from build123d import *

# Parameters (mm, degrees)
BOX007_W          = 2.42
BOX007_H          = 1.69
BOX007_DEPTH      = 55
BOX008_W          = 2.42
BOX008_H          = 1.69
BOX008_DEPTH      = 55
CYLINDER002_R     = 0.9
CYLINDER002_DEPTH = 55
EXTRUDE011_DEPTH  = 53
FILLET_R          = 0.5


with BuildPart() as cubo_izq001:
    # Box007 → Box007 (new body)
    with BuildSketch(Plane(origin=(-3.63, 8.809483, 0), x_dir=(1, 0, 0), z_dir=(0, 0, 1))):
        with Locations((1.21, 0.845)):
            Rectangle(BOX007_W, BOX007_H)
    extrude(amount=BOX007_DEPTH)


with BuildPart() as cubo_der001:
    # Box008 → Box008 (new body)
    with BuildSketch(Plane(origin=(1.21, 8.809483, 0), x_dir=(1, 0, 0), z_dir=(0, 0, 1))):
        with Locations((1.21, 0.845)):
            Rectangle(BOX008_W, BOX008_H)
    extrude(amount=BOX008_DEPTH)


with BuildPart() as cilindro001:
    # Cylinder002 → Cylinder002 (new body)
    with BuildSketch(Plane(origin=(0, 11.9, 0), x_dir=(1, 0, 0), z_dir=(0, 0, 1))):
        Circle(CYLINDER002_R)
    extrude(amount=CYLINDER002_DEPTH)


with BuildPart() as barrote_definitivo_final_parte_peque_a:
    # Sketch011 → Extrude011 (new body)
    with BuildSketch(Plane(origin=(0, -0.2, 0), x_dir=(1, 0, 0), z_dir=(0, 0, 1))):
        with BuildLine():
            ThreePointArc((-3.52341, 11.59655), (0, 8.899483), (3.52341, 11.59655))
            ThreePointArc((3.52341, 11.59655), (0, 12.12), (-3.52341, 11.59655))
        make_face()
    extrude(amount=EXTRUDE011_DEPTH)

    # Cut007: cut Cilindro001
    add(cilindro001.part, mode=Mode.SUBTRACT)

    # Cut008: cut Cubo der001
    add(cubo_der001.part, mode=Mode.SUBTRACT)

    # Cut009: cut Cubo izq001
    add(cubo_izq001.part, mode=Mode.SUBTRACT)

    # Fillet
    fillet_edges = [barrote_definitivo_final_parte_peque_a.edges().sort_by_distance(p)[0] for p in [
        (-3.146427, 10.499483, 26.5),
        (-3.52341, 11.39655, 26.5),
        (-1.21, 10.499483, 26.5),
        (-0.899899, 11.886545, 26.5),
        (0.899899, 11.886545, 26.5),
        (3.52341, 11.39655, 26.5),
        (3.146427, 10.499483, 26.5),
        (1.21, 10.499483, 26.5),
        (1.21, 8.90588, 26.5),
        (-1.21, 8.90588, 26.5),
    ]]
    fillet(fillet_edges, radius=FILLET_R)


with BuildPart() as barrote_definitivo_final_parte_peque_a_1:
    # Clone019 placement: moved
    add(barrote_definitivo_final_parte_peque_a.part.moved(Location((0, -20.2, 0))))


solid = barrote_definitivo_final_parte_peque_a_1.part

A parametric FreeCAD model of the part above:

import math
import FreeCAD as App
import Part
import Sketcher

V = App.Vector
Q = App.Units.Quantity


def edges_at(feature, points):
    """Names of the edges that pass closest to the given points."""
    edges = feature.Shape.Edges
    near = lambda p: min(range(len(edges)), key=lambda i: edges[i].distToShape(Part.Vertex(*p))[0])
    return sorted({f"Edge{near(p) + 1}" for p in points})


def add_polygon(sketch, points):
    """Adds a closed chain of lines whose ends are joined by coincident constraints."""
    first, n = sketch.GeometryCount, len(points)
    for a, b in zip(points, points[1:] + points[:1]):
        sketch.addGeometry(Part.LineSegment(App.Vector(*a, 0), App.Vector(*b, 0)), False)
    for i in range(n):
        sketch.addConstraint(Sketcher.Constraint("Coincident", first + i, 2, first + (i + 1) % n, 1))

doc = App.newDocument("Part")
body = doc.addObject("PartDesign::Body", "Body")

sketch1 = doc.addObject("Sketcher::SketchObject", "Sketch")
body.addObject(sketch1)
sketch1.AttachmentSupport = (doc.XY_Plane, [""])
sketch1.MapMode = "FlatFace"
add_polygon(sketch1, [(-3.63, 10.499483), (-3.63, 8.809483), (-1.21, 8.809483), (-1.21, 10.499483)])
sketch1.addConstraint([
    Sketcher.Constraint("Vertical", 0),
    Sketcher.Constraint("Horizontal", 1),
    Sketcher.Constraint("Vertical", 2),
    Sketcher.Constraint("Horizontal", 3),
    Sketcher.Constraint("DistanceX", 1, 1, 1, 2, Q("2.42 mm")),
    Sketcher.Constraint("DistanceY", 0, 2, 0, 1, Q("1.69 mm")),
    Sketcher.Constraint("DistanceX", 0, 2, -1, 1, Q("3.63 mm")),
    Sketcher.Constraint("DistanceY", -1, 1, 0, 2, Q("8.809483 mm")),
])
pad1 = doc.addObject("PartDesign::Pad", "Pad")
body.addObject(pad1)
pad1.Profile = sketch1
pad1.Length = 55
body2 = doc.addObject("PartDesign::Body", "Body001")

sketch2 = doc.addObject("Sketcher::SketchObject", "Sketch001")
body2.addObject(sketch2)
sketch2.AttachmentSupport = (doc.getObject("XY_Plane001"), [""])
sketch2.MapMode = "FlatFace"
add_polygon(sketch2, [(1.21, 10.499483), (1.21, 8.809483), (3.63, 8.809483), (3.63, 10.499483)])
sketch2.addConstraint([
    Sketcher.Constraint("Vertical", 0),
    Sketcher.Constraint("Horizontal", 1),
    Sketcher.Constraint("Vertical", 2),
    Sketcher.Constraint("Horizontal", 3),
    Sketcher.Constraint("DistanceX", 1, 1, 1, 2, Q("2.42 mm")),
    Sketcher.Constraint("DistanceY", 0, 2, 0, 1, Q("1.69 mm")),
    Sketcher.Constraint("DistanceX", -1, 1, 0, 2, Q("1.21 mm")),
    Sketcher.Constraint("DistanceY", -1, 1, 0, 2, Q("8.809483 mm")),
])
pad2 = doc.addObject("PartDesign::Pad", "Pad001")
body2.addObject(pad2)
pad2.Profile = sketch2
pad2.Length = 55
body3 = doc.addObject("PartDesign::Body", "Body002")

sketch3 = doc.addObject("Sketcher::SketchObject", "Sketch002")
body3.addObject(sketch3)
sketch3.AttachmentSupport = (doc.getObject("XY_Plane002"), [""])
sketch3.MapMode = "FlatFace"
sketch3.addGeometry(Part.Circle(V(0, 11.9, 0), V(0, 0, 1), 0.9), False)
sketch3.addConstraint([
    Sketcher.Constraint("PointOnObject", 0, 3, -2),
    Sketcher.Constraint("Diameter", 0, Q("1.8 mm")),
    Sketcher.Constraint("DistanceY", -1, 1, 0, 3, Q("11.9 mm")),
])
pad3 = doc.addObject("PartDesign::Pad", "Pad002")
body3.addObject(pad3)
pad3.Profile = sketch3
pad3.Length = 55
body4 = doc.addObject("PartDesign::Body", "Body003")

sketch4 = doc.addObject("Sketcher::SketchObject", "Sketch003")
body4.addObject(sketch4)
sketch4.AttachmentSupport = (doc.getObject("XY_Plane003"), [""])
sketch4.MapMode = "FlatFace"
sketch4.addGeometry([
    Part.ArcOfCircle(Part.Circle(V(0, 12.349483, 0), V(0, 0, 1), 3.65), math.radians(-164.865993), math.radians(-15.134007)),
    Part.ArcOfCircle(Part.Circle(V(0, -0.19999, 0), V(0, 0, 1), 12.11999), math.radians(73.099495), math.radians(106.900505)),
], False)
sketch4.addConstraint([
    Sketcher.Constraint("Coincident", 0, 1, 1, 2),
    Sketcher.Constraint("Coincident", 1, 1, 0, 2),
    Sketcher.Constraint("Symmetric", 0, 1, 1, 1, -2),
    Sketcher.Constraint("Radius", 0, Q("3.65 mm")),
    Sketcher.Constraint("Radius", 1, Q("12.11999 mm")),
    Sketcher.Constraint("DistanceY", 1, 3, -1, 1, Q("0.19999 mm")),
    Sketcher.Constraint("DistanceX", 0, 1, -1, 1, Q("3.52341 mm")),
])
pad4 = doc.addObject("PartDesign::Pad", "Pad003")
body4.addObject(pad4)
pad4.Profile = sketch4
pad4.Length = 53
doc.recompute()

boolean = doc.addObject("PartDesign::Boolean", "Boolean")
body4.addObject(boolean)
boolean.Type = "Cut"
boolean.addObjects([body3])
doc.recompute()

boolean2 = doc.addObject("PartDesign::Boolean", "Boolean001")
body4.addObject(boolean2)
boolean2.Type = "Cut"
boolean2.addObjects([body2])
doc.recompute()

boolean3 = doc.addObject("PartDesign::Boolean", "Boolean002")
body4.addObject(boolean3)
boolean3.Type = "Cut"
boolean3.addObjects([body])
doc.recompute()

fillet = doc.addObject("PartDesign::Fillet", "Fillet")
body4.addObject(fillet)
fillet.Base = (boolean3, edges_at(boolean3, [
    (-3.146, 10.499, 26.5),
    (-3.523, 11.397, 26.5),
    (-1.21, 10.499, 26.5),
    (-0.9, 11.887, 26.5),
    (0.9, 11.887, 26.5),
    (3.523, 11.397, 26.5),
    (3.146, 10.499, 26.5),
    (1.21, 10.499, 26.5),
    (1.21, 8.906, 26.5),
    (-1.21, 8.906, 26.5),
]))
fillet.Radius = 0.5
body5 = doc.addObject("PartDesign::Body", "Body004")
doc.recompute()

body4.Placement = App.Placement(V(0, -20.2, 0), App.Rotation(V(0, 0, 1), 0))
boolean4 = doc.addObject("PartDesign::Boolean", "Boolean003")
body5.addObject(boolean4)
boolean4.Type = "Fuse"
boolean4.addObjects([body4])

doc.recompute()
